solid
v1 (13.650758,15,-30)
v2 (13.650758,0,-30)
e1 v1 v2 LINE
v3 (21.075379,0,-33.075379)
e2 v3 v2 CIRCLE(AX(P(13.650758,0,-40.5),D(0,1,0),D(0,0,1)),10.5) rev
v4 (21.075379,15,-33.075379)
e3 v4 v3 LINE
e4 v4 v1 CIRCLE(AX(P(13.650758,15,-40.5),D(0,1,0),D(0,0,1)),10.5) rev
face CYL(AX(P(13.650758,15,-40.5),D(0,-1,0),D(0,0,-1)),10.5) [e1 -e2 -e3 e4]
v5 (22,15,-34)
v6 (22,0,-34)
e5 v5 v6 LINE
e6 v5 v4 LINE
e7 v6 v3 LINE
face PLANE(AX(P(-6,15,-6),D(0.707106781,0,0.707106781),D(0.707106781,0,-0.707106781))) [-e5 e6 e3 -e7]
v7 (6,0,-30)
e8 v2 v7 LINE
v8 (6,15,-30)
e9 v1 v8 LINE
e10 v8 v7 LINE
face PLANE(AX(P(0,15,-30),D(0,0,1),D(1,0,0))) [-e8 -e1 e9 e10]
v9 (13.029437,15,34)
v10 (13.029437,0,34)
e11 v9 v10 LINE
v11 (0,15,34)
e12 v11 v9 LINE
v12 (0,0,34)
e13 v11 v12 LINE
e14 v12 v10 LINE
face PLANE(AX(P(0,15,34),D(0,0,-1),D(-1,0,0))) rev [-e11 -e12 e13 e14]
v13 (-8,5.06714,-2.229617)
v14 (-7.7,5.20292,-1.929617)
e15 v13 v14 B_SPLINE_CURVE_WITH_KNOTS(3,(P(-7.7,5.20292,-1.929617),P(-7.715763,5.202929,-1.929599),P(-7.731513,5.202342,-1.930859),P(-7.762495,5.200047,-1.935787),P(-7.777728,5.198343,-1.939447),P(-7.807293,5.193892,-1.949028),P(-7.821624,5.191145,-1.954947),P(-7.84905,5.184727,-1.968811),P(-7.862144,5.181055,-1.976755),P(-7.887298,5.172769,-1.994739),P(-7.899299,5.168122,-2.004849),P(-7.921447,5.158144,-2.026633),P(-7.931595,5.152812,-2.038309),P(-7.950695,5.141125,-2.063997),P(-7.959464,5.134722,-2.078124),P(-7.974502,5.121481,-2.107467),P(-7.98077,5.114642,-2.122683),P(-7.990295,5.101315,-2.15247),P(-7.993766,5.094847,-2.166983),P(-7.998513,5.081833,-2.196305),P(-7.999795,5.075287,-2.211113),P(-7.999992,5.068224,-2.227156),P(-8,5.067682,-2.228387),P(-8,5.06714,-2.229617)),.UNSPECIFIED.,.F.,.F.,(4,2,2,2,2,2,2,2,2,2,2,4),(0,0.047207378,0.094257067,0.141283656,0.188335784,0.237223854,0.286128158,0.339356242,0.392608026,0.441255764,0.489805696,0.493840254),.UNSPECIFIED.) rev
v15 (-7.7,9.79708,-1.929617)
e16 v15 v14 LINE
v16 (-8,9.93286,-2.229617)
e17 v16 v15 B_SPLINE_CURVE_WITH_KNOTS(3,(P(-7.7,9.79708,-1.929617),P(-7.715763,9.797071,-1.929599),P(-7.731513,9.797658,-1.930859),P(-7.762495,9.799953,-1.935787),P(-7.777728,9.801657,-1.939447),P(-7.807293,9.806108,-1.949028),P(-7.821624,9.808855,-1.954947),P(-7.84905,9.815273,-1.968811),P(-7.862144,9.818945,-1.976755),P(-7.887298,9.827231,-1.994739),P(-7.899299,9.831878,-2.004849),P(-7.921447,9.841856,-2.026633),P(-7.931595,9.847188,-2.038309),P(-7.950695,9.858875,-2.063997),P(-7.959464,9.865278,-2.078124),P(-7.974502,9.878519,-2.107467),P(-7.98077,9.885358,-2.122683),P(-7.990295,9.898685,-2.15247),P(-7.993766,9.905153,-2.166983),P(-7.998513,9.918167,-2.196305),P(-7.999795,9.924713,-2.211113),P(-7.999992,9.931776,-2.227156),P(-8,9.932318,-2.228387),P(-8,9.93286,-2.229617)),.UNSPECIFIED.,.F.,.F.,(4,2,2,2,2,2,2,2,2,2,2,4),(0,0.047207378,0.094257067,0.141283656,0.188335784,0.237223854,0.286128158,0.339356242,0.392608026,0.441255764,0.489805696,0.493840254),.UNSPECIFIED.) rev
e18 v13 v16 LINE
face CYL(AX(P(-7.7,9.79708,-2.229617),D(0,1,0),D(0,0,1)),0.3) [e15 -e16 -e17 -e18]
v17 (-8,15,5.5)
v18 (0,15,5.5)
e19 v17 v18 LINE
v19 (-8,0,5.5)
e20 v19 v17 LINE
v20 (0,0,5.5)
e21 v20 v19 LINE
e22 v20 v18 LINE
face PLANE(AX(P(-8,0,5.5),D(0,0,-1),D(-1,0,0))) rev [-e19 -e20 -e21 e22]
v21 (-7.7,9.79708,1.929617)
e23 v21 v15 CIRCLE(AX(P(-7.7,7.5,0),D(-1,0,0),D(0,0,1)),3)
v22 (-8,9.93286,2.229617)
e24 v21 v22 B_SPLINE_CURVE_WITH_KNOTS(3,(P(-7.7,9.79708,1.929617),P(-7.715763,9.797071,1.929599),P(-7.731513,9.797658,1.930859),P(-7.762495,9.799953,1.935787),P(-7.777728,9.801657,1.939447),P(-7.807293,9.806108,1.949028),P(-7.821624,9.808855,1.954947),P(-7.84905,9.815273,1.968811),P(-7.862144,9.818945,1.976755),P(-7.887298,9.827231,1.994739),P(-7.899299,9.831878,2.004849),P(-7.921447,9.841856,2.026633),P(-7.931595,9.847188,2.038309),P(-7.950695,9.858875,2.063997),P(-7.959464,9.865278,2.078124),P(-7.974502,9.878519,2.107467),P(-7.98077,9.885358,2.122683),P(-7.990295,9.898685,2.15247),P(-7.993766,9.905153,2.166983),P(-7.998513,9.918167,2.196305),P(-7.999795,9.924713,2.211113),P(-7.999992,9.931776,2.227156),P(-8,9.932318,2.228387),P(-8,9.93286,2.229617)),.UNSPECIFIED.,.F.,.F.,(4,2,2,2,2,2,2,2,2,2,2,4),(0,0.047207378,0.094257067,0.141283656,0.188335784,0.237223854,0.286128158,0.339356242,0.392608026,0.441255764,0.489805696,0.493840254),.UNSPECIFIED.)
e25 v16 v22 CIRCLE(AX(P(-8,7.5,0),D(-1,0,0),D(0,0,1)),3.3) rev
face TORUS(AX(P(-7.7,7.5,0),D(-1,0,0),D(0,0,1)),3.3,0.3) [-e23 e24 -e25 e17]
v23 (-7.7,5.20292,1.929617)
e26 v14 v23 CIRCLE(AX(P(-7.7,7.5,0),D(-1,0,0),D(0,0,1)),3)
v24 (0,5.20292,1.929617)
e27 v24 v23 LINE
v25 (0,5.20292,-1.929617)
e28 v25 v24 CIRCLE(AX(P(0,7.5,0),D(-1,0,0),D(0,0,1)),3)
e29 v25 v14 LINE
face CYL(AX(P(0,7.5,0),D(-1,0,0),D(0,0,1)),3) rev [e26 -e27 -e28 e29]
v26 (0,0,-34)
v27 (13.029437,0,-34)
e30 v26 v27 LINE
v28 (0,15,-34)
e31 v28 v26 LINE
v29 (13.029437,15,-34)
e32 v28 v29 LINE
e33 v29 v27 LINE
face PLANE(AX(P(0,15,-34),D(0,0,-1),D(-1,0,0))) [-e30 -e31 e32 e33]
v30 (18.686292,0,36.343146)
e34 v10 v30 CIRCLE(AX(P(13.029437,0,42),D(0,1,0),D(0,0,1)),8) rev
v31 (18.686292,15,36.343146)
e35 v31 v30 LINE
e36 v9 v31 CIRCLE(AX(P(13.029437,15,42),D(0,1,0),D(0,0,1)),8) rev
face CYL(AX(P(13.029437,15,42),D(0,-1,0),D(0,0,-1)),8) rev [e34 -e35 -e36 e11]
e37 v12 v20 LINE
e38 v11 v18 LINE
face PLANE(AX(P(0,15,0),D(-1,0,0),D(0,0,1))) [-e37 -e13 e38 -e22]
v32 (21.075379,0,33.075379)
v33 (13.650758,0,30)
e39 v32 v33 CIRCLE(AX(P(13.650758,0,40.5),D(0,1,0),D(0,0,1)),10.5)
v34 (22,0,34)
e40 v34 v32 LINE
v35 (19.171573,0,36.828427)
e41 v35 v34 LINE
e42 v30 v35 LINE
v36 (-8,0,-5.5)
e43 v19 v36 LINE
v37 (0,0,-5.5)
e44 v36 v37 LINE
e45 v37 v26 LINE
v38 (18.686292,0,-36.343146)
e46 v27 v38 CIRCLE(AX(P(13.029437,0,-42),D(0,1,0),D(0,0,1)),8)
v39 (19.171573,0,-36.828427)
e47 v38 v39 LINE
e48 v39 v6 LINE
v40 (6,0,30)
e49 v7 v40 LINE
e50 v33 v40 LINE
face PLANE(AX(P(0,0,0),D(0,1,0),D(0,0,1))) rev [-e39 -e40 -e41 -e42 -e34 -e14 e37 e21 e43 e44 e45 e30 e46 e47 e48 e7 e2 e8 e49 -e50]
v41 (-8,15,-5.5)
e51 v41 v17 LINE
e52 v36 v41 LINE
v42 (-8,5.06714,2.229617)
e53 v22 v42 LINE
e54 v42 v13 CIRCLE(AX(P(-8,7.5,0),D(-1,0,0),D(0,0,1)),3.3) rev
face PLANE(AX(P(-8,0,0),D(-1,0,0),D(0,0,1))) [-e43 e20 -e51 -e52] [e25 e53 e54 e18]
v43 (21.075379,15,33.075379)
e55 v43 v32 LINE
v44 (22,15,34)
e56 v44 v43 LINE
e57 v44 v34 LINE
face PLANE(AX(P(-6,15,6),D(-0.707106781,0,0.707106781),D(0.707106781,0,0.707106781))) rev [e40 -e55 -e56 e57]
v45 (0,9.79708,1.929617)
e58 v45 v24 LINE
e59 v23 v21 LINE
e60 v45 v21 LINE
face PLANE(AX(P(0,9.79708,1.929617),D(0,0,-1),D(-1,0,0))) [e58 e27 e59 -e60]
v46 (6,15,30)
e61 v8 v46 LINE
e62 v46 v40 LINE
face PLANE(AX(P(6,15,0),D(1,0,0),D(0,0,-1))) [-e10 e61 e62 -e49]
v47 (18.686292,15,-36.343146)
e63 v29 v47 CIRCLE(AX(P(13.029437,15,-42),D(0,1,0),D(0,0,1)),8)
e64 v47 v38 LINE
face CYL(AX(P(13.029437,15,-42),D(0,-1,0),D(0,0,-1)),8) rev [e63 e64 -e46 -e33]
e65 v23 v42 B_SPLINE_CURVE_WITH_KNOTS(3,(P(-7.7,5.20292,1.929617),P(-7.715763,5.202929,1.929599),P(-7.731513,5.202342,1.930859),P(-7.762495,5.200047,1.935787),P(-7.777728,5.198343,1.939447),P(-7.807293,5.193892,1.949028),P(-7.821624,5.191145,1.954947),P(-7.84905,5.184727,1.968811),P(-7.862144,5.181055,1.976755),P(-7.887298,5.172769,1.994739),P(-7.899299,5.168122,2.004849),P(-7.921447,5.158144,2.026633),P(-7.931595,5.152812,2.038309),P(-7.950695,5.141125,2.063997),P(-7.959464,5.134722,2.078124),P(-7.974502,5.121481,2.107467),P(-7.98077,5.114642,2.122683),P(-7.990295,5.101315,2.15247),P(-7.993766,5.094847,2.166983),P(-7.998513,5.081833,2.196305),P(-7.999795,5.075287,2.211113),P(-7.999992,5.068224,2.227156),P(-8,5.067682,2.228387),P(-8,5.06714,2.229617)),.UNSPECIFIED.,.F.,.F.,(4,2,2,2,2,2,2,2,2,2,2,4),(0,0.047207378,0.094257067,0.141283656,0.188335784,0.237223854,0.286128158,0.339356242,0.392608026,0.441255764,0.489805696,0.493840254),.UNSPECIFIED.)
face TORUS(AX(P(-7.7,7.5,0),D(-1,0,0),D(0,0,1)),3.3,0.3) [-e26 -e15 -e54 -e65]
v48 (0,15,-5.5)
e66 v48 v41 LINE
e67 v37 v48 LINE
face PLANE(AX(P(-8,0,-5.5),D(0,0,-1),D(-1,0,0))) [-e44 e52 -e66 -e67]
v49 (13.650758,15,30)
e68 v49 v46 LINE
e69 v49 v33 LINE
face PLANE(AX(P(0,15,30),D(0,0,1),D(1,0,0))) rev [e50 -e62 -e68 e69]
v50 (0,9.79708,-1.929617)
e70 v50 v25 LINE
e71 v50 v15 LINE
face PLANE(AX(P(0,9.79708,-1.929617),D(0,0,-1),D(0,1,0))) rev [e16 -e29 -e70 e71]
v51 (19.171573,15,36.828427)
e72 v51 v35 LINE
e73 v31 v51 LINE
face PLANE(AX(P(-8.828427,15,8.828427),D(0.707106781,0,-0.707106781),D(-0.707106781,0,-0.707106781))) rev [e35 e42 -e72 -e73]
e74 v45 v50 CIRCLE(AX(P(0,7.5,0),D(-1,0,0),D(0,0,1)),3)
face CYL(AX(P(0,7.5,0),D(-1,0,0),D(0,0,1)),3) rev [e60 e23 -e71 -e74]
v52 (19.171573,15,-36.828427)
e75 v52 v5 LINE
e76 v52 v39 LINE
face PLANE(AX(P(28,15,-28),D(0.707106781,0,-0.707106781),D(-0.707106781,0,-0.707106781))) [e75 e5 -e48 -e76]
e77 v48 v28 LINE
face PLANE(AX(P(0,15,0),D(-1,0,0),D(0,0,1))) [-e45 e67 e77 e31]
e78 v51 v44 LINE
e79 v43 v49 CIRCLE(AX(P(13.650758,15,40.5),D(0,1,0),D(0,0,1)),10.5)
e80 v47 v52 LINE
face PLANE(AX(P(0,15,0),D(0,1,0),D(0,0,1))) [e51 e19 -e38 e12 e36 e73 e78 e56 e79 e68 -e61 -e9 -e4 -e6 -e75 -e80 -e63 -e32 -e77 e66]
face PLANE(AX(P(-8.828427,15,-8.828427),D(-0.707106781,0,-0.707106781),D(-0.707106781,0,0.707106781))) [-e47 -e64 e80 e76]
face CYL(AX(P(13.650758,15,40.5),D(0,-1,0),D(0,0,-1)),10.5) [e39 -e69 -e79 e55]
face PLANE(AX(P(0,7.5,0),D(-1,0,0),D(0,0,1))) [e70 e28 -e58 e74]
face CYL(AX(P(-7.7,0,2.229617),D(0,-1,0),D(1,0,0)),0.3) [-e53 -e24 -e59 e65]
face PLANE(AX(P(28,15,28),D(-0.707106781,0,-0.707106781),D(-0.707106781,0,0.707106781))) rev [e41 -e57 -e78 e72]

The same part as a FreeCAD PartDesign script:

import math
import FreeCAD as App
import Part
import Sketcher
from FreeCAD import Vector
Q = App.Units.Quantity


def edges_at(feature, points):
    """Names of the edges that pass closest to the given points."""
    edges = feature.Shape.Edges
    near = lambda p: min(range(len(edges)), key=lambda i: edges[i].distToShape(Part.Vertex(*p))[0])
    return sorted({f"Edge{near(p) + 1}" for p in points})

doc = App.newDocument("Part")
body = doc.addObject("PartDesign::Body", "Body")

# Sketch on XZ plane
sketch1 = body.newObject("Sketcher::SketchObject", "Sketch")
sketch1.AttachmentSupport = (doc.getObject("XZ_Plane"), [""])
sketch1.MapMode = "FlatFace"
sketch1.addGeometry([
    Part.LineSegment(Vector(0, -34, 0), Vector(0, 34, 0)),  # 0
    Part.LineSegment(Vector(0, 34, 0), Vector(13, 34, 0)),  # 1
    Part.ArcOfCircle(Part.Circle(Vector(13, 42, 0), Vector(0, 0, 1), 8), math.radians(-90), math.radians(-45)),  # 2
    Part.LineSegment(Vector(18.7, 36.3, 0), Vector(19.2, 36.8, 0)),  # 3
    Part.LineSegment(Vector(19.2, 36.8, 0), Vector(22, 34, 0)),  # 4
    Part.LineSegment(Vector(22, 34, 0), Vector(21.1, 33.1, 0)),  # 5
    Part.ArcOfCircle(Part.Circle(Vector(13.7, 40.5, 0), Vector(0, 0, 1), 10.5), math.radians(-90), math.radians(-45)),  # 6
    Part.LineSegment(Vector(13.7, 30, 0), Vector(6, 30, 0)),  # 7
    Part.LineSegment(Vector(6, 30, 0), Vector(6, -30, 0)),  # 8
    Part.LineSegment(Vector(6, -30, 0), Vector(13.7, -30, 0)),  # 9
    Part.ArcOfCircle(Part.Circle(Vector(13.7, -40.5, 0), Vector(0, 0, 1), 10.5), math.radians(45), math.radians(90)),  # 10
    Part.LineSegment(Vector(21.1, -33.1, 0), Vector(22, -34, 0)),  # 11
    Part.LineSegment(Vector(22, -34, 0), Vector(19.2, -36.8, 0)),  # 12
    Part.LineSegment(Vector(19.2, -36.8, 0), Vector(18.7, -36.3, 0)),  # 13
    Part.ArcOfCircle(Part.Circle(Vector(13, -42, 0), Vector(0, 0, 1), 8), math.radians(45), math.radians(90)),  # 14
    Part.LineSegment(Vector(13, -34, 0), Vector(0, -34, 0)),  # 15
], False)
sketch1.addConstraint([
    Sketcher.Constraint("Coincident", 0, 2, 1, 1),
    Sketcher.Constraint("Tangent", 1, 2, 2, 1),
    Sketcher.Constraint("Tangent", 2, 2, 3, 1),
    Sketcher.Constraint("Coincident", 3, 2, 4, 1),
    Sketcher.Constraint("Coincident", 4, 2, 5, 1),
    Sketcher.Constraint("Tangent", 5, 2, 6, 2),
    Sketcher.Constraint("Tangent", 6, 1, 7, 1),
    Sketcher.Constraint("Coincident", 7, 2, 8, 1),
    Sketcher.Constraint("Coincident", 8, 2, 9, 1),
    Sketcher.Constraint("Tangent", 9, 2, 10, 2),
    Sketcher.Constraint("Tangent", 10, 1, 11, 1),
    Sketcher.Constraint("Coincident", 11, 2, 12, 1),
    Sketcher.Constraint("Coincident", 12, 2, 13, 1),
    Sketcher.Constraint("Tangent", 13, 2, 14, 1),
    Sketcher.Constraint("Tangent", 14, 2, 15, 1),
    Sketcher.Constraint("Coincident", 15, 2, 0, 1),
    Sketcher.Constraint("Vertical", 0),
    Sketcher.Constraint("Horizontal", 1),
    Sketcher.Constraint("Horizontal", 7),
    Sketcher.Constraint("Vertical", 8),
    Sketcher.Constraint("Horizontal", 9),
    Sketcher.Constraint("Horizontal", 15),
    Sketcher.Constraint("Equal", 6, 10),
    Sketcher.Constraint("Equal", 2, 14),
    Sketcher.Constraint("Symmetric", 0, 2, 15, 2, -1, 1),
    Sketcher.Constraint("Symmetric", 6, 3, 10, 3, -1),
    Sketcher.Constraint("Symmetric", 4, 2, 11, 2, -1),
    Sketcher.Constraint("Symmetric", 3, 2, 12, 2, -1),
    Sketcher.Constraint("Perpendicular", 3, 4),
    Sketcher.Constraint("Perpendicular", 4, 5),
    Sketcher.Constraint("Perpendicular", 5, 11),
    Sketcher.Constraint("Perpendicular", 12, 13),
    Sketcher.Constraint("Horizontal", 1, 2, 4, 2),
    Sketcher.Constraint("Radius", 2, Q("8 mm")),
    Sketcher.Constraint("Radius", 6, Q("10.5 mm")),
    Sketcher.Constraint("DistanceY", 0, 1, 0, 2, Q("68 mm")),
    Sketcher.Constraint("DistanceY", 8, 2, 8, 1, Q("60 mm")),
    Sketcher.Constraint("Distance", 4, Q("4 mm")),
    Sketcher.Constraint("DistanceX", -1, 1, 4, 2, Q("22 mm")),
    Sketcher.Constraint("DistanceX", -1, 1, 7, 2, Q("6 mm")),
])
pad1 = body.newObject("PartDesign::Pad", "Pad")
pad1.Profile = sketch1
pad1.Length = 15
pad1.Reversed = True

# Sketch on YZ plane
sketch2 = body.newObject("Sketcher::SketchObject", "Sketch001")
sketch2.AttachmentSupport = (doc.getObject("YZ_Plane"), [""])
sketch2.MapMode = "FlatFace"
sketch2.addGeometry([
    Part.LineSegment(Vector(3, -6, 0), Vector(3, 6, 0)),
    Part.LineSegment(Vector(3, 6, 0), Vector(12, 6, 0)),
    Part.LineSegment(Vector(12, 6, 0), Vector(12, -6, 0)),
    Part.LineSegment(Vector(12, -6, 0), Vector(3, -6, 0)),
], False)
sketch2.addConstraint([
    Sketcher.Constraint("Coincident", 0, 2, 1, 1),
    Sketcher.Constraint("Coincident", 1, 2, 2, 1),
    Sketcher.Constraint("Coincident", 2, 2, 3, 1),
    Sketcher.Constraint("Coincident", 3, 2, 0, 1),
    Sketcher.Constraint("Vertical", 0),
    Sketcher.Constraint("Horizontal", 1),
    Sketcher.Constraint("Vertical", 2),
    Sketcher.Constraint("Horizontal", 3),
    Sketcher.Constraint("DistanceX", 1, 1, 1, 2, Q("9 mm")),
    Sketcher.Constraint("DistanceY", 0, 1, 0, 2, Q("11 mm")),
    Sketcher.Constraint("DistanceX", -1, 1, 0, 2, Q("3 mm")),
    Sketcher.Constraint("DistanceY", -1, 1, 0, 2, Q("5.5 mm")),
])
pad2 = body.newObject("PartDesign::Pad", "Pad001")
pad2.Profile = sketch2
pad2.Length = 8
pad2.Reversed = True

# Sketch on YZ plane
sketch3 = body.newObject("Sketcher::SketchObject", "Sketch002")
sketch3.AttachmentSupport = (doc.getObject("YZ_Plane"), [""])
sketch3.MapMode = "FlatFace"
sketch3.AttachmentOffset = App.Placement(Vector(0, 0, -8), App.Rotation())
sketch3.addGeometry([
    Part.LineSegment(Vector(9.8, -1.9, 0), Vector(5.2, -1.9, 0)),
    Part.ArcOfCircle(Part.Circle(Vector(7.5, 0, 0), Vector(0, 0, 1), 3), math.radians(140), math.radians(220)),
    Part.LineSegment(Vector(5.2, 1.9, 0), Vector(9.8, 1.9, 0)),
    Part.ArcOfCircle(Part.Circle(Vector(7.5, 0, 0), Vector(0, 0, 1), 3), math.radians(-40), math.radians(40)),
], False)
sketch3.addConstraint([
    Sketcher.Constraint("Coincident", 0, 2, 1, 2),
    Sketcher.Constraint("Coincident", 1, 1, 2, 1),
    Sketcher.Constraint("Coincident", 2, 2, 3, 2),
    Sketcher.Constraint("Coincident", 3, 1, 0, 1),
    Sketcher.Constraint("Horizontal", 0),
    Sketcher.Constraint("Horizontal", 2),
    Sketcher.Constraint("Coincident", 3, 3, 1, 3),
    Sketcher.Constraint("Equal", 1, 3),
    Sketcher.Constraint("Symmetric", 0, 2, 1, 1, -1),
    Sketcher.Constraint("Radius", 1, Q("3 mm")),
    Sketcher.Constraint("DistanceX", -1, 1, 1, 3, Q("7.5 mm")),
    Sketcher.Constraint("DistanceX", 0, 2, 0, 1, Q("4.59416 mm")),
])
pocket1 = body.newObject("PartDesign::Pocket", "Pocket")
pocket1.Profile = sketch3
pocket1.Length = 8
pocket1.Reversed = True
doc.recompute()

fillet = body.newObject("PartDesign::Fillet", "Fillet")
fillet.Base = (pocket1, edges_at(pocket1, [
    (-8, 7.5, 1.93),
    (-8, 10.5, 0),
    (-8, 7.5, -1.93),
    (-8, 4.5, 0),
]))
fillet.Radius = 0.3

# Sketch on XZ plane
sketch4 = body.newObject("Sketcher::SketchObject", "Sketch003")
sketch4.AttachmentSupport = (doc.getObject("XZ_Plane"), [""])
sketch4.MapMode = "FlatFace"
sketch4.AttachmentOffset = App.Placement(Vector(0, 0, -3), App.Rotation())
sketch4.addGeometry([
    Part.LineSegment(Vector(-8, 6, 0), Vector(-8, -6, 0)),
    Part.LineSegment(Vector(-8, -6, 0), Vector(0, -6, 0)),
    Part.LineSegment(Vector(0, -6, 0), Vector(0, 6, 0)),
    Part.LineSegment(Vector(0, 6, 0), Vector(-8, 6, 0)),
], False)
sketch4.addConstraint([
    Sketcher.Constraint("Coincident", 0, 2, 1, 1),
    Sketcher.Constraint("Coincident", 1, 2, 2, 1),
    Sketcher.Constraint("Coincident", 2, 2, 3, 1),
    Sketcher.Constraint("Coincident", 3, 2, 0, 1),
    Sketcher.Constraint("Vertical", 0),
    Sketcher.Constraint("Horizontal", 1),
    Sketcher.Constraint("Vertical", 2),
    Sketcher.Constraint("Horizontal", 3),
    Sketcher.Constraint("Symmetric", 1, 2, 2, 2, -1, 1),
    Sketcher.Constraint("DistanceX", 1, 1, 1, 2, Q("8 mm")),
    Sketcher.Constraint("DistanceY", 0, 2, 0, 1, Q("11 mm")),
])
pad3 = body.newObject("PartDesign::Pad", "Pad002")
pad3.Profile = sketch4
pad3.Length = 3

# Sketch on XZ plane
sketch5 = body.newObject("Sketcher::SketchObject", "Sketch004")
sketch5.AttachmentSupport = (doc.getObject("XZ_Plane"), [""])
sketch5.MapMode = "FlatFace"
sketch5.AttachmentOffset = App.Placement(Vector(0, 0, -12), App.Rotation())
sketch5.addGeometry([
    Part.LineSegment(Vector(-8, -6, 0), Vector(-8, 6, 0)),
    Part.LineSegment(Vector(-8, 6, 0), Vector(0, 6, 0)),
    Part.LineSegment(Vector(0, 6, 0), Vector(0, -6, 0)),
    Part.LineSegment(Vector(0, -6, 0), Vector(-8, -6, 0)),
], False)
sketch5.addConstraint([
    Sketcher.Constraint("Coincident", 0, 2, 1, 1),
    Sketcher.Constraint("Coincident", 1, 2, 2, 1),
    Sketcher.Constraint("Coincident", 2, 2, 3, 1),
    Sketcher.Constraint("Coincident", 3, 2, 0, 1),
    Sketcher.Constraint("Vertical", 0),
    Sketcher.Constraint("Horizontal", 1),
    Sketcher.Constraint("Vertical", 2),
    Sketcher.Constraint("Horizontal", 3),
    Sketcher.Constraint("Symmetric", 1, 2, 2, 2, -1, 1),
    Sketcher.Constraint("DistanceX", 1, 1, 1, 2, Q("8 mm")),
    Sketcher.Constraint("DistanceY", 0, 1, 0, 2, Q("11 mm")),
])
pad4 = body.newObject("PartDesign::Pad", "Pad003")
pad4.Profile = sketch5
pad4.Length = 3
pad4.Reversed = True

doc.recompute()
